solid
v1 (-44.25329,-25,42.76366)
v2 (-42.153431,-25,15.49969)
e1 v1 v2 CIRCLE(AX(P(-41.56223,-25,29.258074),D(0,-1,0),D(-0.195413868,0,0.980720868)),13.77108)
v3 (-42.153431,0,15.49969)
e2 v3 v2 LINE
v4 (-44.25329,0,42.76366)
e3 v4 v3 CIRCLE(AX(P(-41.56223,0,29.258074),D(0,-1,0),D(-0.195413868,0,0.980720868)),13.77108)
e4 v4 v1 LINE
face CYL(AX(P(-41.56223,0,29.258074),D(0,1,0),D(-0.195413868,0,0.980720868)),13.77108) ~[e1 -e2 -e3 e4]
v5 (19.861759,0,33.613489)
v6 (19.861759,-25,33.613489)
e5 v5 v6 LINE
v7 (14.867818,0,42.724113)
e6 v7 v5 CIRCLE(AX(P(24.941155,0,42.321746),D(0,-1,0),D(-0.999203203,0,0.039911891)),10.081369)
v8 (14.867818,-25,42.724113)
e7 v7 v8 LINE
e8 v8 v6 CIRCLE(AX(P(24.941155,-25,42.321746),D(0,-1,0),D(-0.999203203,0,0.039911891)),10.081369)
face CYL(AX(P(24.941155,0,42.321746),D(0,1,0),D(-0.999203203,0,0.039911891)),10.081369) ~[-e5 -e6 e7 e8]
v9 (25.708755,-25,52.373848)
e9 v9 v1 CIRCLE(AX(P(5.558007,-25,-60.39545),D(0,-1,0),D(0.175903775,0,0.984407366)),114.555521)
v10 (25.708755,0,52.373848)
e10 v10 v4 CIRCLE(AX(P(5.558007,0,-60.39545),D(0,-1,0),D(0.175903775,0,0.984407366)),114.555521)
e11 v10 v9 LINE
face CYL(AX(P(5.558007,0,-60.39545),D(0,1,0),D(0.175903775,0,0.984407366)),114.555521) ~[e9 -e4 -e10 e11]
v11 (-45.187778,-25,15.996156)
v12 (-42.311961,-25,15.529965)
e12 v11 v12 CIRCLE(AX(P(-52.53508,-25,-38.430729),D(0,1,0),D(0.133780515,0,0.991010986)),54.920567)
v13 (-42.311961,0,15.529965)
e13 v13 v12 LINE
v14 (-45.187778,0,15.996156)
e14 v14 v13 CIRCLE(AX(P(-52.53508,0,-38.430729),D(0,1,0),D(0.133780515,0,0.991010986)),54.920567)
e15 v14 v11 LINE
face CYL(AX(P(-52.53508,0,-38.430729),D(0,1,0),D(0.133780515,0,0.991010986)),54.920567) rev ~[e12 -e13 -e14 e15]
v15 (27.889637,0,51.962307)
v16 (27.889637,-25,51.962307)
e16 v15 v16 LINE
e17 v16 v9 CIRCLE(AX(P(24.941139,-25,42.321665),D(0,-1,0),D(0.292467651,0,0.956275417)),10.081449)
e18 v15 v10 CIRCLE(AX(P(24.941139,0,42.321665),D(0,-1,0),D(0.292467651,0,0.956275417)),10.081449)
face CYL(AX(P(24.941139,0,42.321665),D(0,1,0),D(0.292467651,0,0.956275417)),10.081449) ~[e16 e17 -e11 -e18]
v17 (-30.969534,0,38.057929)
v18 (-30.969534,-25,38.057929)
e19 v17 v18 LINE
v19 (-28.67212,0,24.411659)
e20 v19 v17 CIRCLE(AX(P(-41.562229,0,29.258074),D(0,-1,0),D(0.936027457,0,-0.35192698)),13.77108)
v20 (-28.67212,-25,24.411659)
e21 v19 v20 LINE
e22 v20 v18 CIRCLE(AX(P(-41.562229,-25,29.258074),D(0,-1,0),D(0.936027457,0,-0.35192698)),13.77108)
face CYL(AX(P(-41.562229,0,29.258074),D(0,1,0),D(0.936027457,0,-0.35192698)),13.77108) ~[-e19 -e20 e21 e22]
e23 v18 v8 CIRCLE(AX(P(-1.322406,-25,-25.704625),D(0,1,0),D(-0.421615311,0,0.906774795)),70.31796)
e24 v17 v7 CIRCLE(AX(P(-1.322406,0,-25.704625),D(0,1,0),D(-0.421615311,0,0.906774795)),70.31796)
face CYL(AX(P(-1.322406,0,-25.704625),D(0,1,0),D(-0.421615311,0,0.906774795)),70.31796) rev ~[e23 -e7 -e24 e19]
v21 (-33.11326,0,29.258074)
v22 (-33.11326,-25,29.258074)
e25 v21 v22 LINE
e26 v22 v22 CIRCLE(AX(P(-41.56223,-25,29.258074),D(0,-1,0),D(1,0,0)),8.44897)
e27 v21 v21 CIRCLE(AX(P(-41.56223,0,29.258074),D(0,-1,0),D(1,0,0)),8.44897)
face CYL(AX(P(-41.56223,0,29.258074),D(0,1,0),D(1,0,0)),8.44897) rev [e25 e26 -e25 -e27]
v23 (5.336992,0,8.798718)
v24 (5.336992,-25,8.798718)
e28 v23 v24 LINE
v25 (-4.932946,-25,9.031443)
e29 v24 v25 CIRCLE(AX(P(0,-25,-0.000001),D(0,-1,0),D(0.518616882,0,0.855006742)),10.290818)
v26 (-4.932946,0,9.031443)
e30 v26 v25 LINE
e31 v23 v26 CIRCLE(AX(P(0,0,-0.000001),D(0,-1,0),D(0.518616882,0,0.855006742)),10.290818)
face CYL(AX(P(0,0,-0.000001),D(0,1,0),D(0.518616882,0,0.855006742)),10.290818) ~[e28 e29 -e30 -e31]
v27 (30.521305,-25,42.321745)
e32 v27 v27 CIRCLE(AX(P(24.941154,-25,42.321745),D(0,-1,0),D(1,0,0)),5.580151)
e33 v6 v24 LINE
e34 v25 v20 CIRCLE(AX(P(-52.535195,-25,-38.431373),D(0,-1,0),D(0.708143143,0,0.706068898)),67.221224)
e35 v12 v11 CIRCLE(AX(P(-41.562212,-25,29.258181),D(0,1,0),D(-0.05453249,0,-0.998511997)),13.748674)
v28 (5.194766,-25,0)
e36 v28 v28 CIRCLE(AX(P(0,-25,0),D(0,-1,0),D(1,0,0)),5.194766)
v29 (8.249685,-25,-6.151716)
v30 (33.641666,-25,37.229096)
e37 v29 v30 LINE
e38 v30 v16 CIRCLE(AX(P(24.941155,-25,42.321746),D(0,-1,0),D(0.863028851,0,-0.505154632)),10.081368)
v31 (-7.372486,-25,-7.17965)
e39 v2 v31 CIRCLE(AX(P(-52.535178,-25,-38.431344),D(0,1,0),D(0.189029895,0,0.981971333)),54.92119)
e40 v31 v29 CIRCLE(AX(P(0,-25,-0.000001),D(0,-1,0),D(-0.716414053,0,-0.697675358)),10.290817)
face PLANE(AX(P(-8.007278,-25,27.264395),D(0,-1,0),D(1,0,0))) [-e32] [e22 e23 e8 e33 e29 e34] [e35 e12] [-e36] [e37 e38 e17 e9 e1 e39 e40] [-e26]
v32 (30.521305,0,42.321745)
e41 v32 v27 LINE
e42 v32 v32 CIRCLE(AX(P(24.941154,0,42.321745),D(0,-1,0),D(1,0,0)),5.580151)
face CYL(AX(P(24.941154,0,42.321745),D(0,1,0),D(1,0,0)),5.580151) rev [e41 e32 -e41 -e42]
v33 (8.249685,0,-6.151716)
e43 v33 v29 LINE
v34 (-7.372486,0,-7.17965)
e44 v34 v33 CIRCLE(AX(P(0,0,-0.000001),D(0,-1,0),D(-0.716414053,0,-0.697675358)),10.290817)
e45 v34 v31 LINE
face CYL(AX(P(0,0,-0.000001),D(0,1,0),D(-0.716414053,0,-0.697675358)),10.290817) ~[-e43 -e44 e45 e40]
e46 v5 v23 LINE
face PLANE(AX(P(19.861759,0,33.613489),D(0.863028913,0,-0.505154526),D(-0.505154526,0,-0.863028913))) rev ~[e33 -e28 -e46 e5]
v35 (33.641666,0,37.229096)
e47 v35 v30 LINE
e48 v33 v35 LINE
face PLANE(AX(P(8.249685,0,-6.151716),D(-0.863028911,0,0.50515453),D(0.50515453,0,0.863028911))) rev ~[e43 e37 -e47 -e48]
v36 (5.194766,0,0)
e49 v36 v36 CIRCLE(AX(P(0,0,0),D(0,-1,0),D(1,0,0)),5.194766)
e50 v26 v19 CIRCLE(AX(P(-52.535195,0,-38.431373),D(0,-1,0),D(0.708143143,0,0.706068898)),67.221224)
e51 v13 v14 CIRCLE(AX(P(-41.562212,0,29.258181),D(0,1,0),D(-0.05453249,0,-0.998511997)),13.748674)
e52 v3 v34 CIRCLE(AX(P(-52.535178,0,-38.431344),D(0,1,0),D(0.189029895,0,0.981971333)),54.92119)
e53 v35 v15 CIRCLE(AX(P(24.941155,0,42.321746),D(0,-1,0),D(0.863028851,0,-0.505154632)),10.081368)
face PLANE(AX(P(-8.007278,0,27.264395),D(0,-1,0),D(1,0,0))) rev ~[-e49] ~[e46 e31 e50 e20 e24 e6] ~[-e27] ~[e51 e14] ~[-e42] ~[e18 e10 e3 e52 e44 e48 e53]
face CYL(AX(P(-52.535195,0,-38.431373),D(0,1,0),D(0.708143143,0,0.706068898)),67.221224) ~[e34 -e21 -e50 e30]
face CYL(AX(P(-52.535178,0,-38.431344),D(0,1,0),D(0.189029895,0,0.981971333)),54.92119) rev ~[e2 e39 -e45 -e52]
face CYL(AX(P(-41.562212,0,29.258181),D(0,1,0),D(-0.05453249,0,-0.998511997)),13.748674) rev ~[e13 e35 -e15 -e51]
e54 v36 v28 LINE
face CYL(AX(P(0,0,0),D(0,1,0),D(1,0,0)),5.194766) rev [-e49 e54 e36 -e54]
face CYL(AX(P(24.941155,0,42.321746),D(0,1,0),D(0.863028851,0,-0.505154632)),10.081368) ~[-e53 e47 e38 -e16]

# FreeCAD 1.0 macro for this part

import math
import FreeCAD as App
import Part
import Sketcher
from FreeCAD import Vector

doc = App.newDocument("Part")
body = doc.addObject("PartDesign::Body", "Body")

sketch1 = doc.addObject("Sketcher::SketchObject", "Sketch")
body.addObject(sketch1)
sketch1.AttachmentSupport = (doc.XZ_Plane, [""])
sketch1.MapMode = "FlatFace"
sketch1.addGeometry(Part.ArcOfCircle(Part.Circle(Vector(-52.5, -38.4, 0), Vector(0, 0, 1), 54.9), math.radians(35), math.radians(79)), False)
sketch1.addGeometry(Part.ArcOfCircle(Part.Circle(Vector(0, 0, 0), Vector(0, 0, 1), 10.3), math.radians(-136), math.radians(-37)), False)
sketch1.addGeometry(Part.LineSegment(Vector(8.2, -6.2, 0), Vector(33.6, 37.2, 0)), False)
sketch1.addGeometry(Part.ArcOfCircle(Part.Circle(Vector(24.9, 42.3, 0), Vector(0, 0, 1), 10.1), math.radians(-30), math.radians(73)), False)
sketch1.addGeometry(Part.ArcOfCircle(Part.Circle(Vector(24.9, 42.3, 0), Vector(0, 0, 1), 10.1), math.radians(72.99), math.radians(85.63)), False)
sketch1.addGeometry(Part.ArcOfCircle(Part.Circle(Vector(5.6, -60.4, 0), Vector(0, 0, 1), 114.6), math.radians(80), math.radians(116)), False)
sketch1.addGeometry(Part.ArcOfCircle(Part.Circle(Vector(-41.6, 29.3, 0), Vector(0, 0, 1), 13.8), math.radians(101), math.radians(268)), False)
sketch1.addGeometry(Part.ArcOfCircle(Part.Circle(Vector(-52.5, -38.4, 0), Vector(0, 0, 1), 54.9), math.radians(79.27), math.radians(82.31)), False)
sketch1.addGeometry(Part.ArcOfCircle(Part.Circle(Vector(-41.6, 29.3, 0), Vector(0, 0, 1), 13.7), math.radians(-105.29), math.radians(-93.13)), False)
sketch1.addGeometry(Part.Circle(Vector(0, 0, 0), Vector(0, 0, 1), 5.2), False)
sketch1.addGeometry(Part.Circle(Vector(-41.6, 29.3, 0), Vector(0, 0, 1), 8.4), False)
sketch1.addGeometry(Part.ArcOfCircle(Part.Circle(Vector(24.9, 42.3, 0), Vector(0, 0, 1), 10.1), math.radians(178), math.radians(240)), False)
sketch1.addGeometry(Part.LineSegment(Vector(19.9, 33.6, 0), Vector(5.3, 8.8, 0)), False)
sketch1.addGeometry(Part.ArcOfCircle(Part.Circle(Vector(0, 0, 0), Vector(0, 0, 1), 10.3), math.radians(59), math.radians(119)), False)
sketch1.addGeometry(Part.ArcOfCircle(Part.Circle(Vector(-52.5, -38.4, 0), Vector(0, 0, 1), 67.2), math.radians(45), math.radians(69)), False)
sketch1.addGeometry(Part.ArcOfCircle(Part.Circle(Vector(-41.6, 29.3, 0), Vector(0, 0, 1), 13.8), math.radians(-21), math.radians(40)), False)
sketch1.addGeometry(Part.ArcOfCircle(Part.Circle(Vector(-1.3, -25.7, 0), Vector(0, 0, 1), 70.3), math.radians(77), math.radians(115)), False)
sketch1.addGeometry(Part.Circle(Vector(24.9, 42.3, 0), Vector(0, 0, 1), 5.6), False)
sketch1.addConstraint(Sketcher.Constraint("Coincident", 0, 1, 1, 1))
sketch1.addConstraint(Sketcher.Constraint("Coincident", 1, 2, 2, 1))
sketch1.addConstraint(Sketcher.Constraint("Tangent", 2, 2, 3, 1))
sketch1.addConstraint(Sketcher.Constraint("Tangent", 3, 2, 4, 1))
sketch1.addConstraint(Sketcher.Constraint("Coincident", 4, 2, 5, 1))
sketch1.addConstraint(Sketcher.Constraint("Coincident", 5, 2, 6, 1))
sketch1.addConstraint(Sketcher.Constraint("Coincident", 6, 2, 0, 2))
sketch1.addConstraint(Sketcher.Constraint("Coincident", 7, 1, 8, 2))
sketch1.addConstraint(Sketcher.Constraint("Coincident", 8, 1, 7, 2))
sketch1.addConstraint(Sketcher.Constraint("Coincident", 11, 2, 12, 1))
sketch1.addConstraint(Sketcher.Constraint("Coincident", 12, 2, 13, 1))
sketch1.addConstraint(Sketcher.Constraint("Coincident", 13, 2, 14, 1))
sketch1.addConstraint(Sketcher.Constraint("Coincident", 14, 2, 15, 1))
sketch1.addConstraint(Sketcher.Constraint("Coincident", 15, 2, 16, 2))
sketch1.addConstraint(Sketcher.Constraint("Coincident", 16, 1, 11, 1))
sketch1.addConstraint(Sketcher.Constraint("Coincident", 1, 3, -1, 1))
sketch1.addConstraint(Sketcher.Constraint("Coincident", 9, 3, -1, 1))
sketch1.addConstraint(Sketcher.Constraint("Coincident", 13, 3, -1, 1))
sketch1.addConstraint(Sketcher.Constraint("Coincident", 10, 3, 6, 3))
sketch1.addConstraint(Sketcher.Constraint("Coincident", 11, 3, 3, 3))
sketch1.addConstraint(Sketcher.Constraint("Coincident", 15, 3, 6, 3))
sketch1.addConstraint(Sketcher.Constraint("Coincident", 17, 3, 3, 3))
sketch1.addConstraint(Sketcher.Constraint("Equal", 3, 11))
sketch1.addConstraint(Sketcher.Constraint("Equal", 1, 13))
sketch1.addConstraint(Sketcher.Constraint("Equal", 6, 15))
sketch1.addConstraint(Sketcher.Constraint("Parallel", 2, 12))
sketch1.addConstraint(Sketcher.Constraint("Diameter", 10, 16.89794))
sketch1.addConstraint(Sketcher.Constraint("Radius", 0, 54.92119))
sketch1.addConstraint(Sketcher.Constraint("Radius", 4, 10.081449))
sketch1.addConstraint(Sketcher.Constraint("Radius", 5, 114.555521))
sketch1.addConstraint(Sketcher.Constraint("Radius", 6, 13.77108))
sketch1.addConstraint(Sketcher.Constraint("Radius", 11, 10.081369))
sketch1.addConstraint(Sketcher.Constraint("Radius", 16, 70.31796))
sketch1.addConstraint(Sketcher.Constraint("Diameter", 9, 10.389532))
sketch1.addConstraint(Sketcher.Constraint("Diameter", 17, 11.160302))
sketch1.addConstraint(Sketcher.Constraint("Radius", 1, 10.290817))
sketch1.addConstraint(Sketcher.Constraint("Radius", 7, 54.920567))
sketch1.addConstraint(Sketcher.Constraint("Radius", 8, 13.748674))
sketch1.addConstraint(Sketcher.Constraint("Radius", 14, 67.221224))
sketch1.addConstraint(Sketcher.Constraint("DistanceX", 14, 3, 5, 3, 58.093202))
sketch1.addConstraint(Sketcher.Constraint("DistanceX", 11, 3, 4, 2, 0.7676))
sketch1.addConstraint(Sketcher.Constraint("DistanceX", 6, 2, 10, 3, 0.591201))
sketch1.addConstraint(Sketcher.Constraint("Distance", 2, 50.265769))
sketch1.addConstraint(Sketcher.Constraint("DistanceX", -1, 1, 4, 3, 24.941139))
sketch1.addConstraint(Sketcher.Constraint("DistanceY", 5, 3, -1, 1, 60.39545))
sketch1.addConstraint(Sketcher.Constraint("DistanceX", 6, 3, -1, 1, 41.56223))
sketch1.addConstraint(Sketcher.Constraint("DistanceX", 7, 3, -1, 1, 52.53508))
sketch1.addConstraint(Sketcher.Constraint("DistanceY", 7, 3, -1, 1, 38.430729))
sketch1.addConstraint(Sketcher.Constraint("DistanceX", 8, 3, -1, 1, 41.562212))
sketch1.addConstraint(Sketcher.Constraint("DistanceY", -1, 1, 8, 3, 29.258181))
sketch1.addConstraint(Sketcher.Constraint("DistanceY", 0, 1, -1, 1, 7.17965))
sketch1.addConstraint(Sketcher.Constraint("DistanceX", 5, 2, -1, 1, 44.25329))
sketch1.addConstraint(Sketcher.Constraint("DistanceY", -1, 1, 5, 2, 42.76366))
sketch1.addConstraint(Sketcher.Constraint("DistanceX", -1, 1, 11, 2, 19.861759))
sketch1.addConstraint(Sketcher.Constraint("DistanceX", 14, 2, -1, 1, 28.67212))
sketch1.addConstraint(Sketcher.Constraint("DistanceY", -1, 1, 15, 2, 38.057929))
sketch1.addConstraint(Sketcher.Constraint("DistanceX", 0, 1, 16, 3, 6.05008))
sketch1.addConstraint(Sketcher.Constraint("DistanceY", 11, 3, 3, 2, 9.640561))
pad1 = doc.addObject("PartDesign::Pad", "Pad")
body.addObject(pad1)
pad1.Profile = sketch1
pad1.Length = 25

doc.recompute()
